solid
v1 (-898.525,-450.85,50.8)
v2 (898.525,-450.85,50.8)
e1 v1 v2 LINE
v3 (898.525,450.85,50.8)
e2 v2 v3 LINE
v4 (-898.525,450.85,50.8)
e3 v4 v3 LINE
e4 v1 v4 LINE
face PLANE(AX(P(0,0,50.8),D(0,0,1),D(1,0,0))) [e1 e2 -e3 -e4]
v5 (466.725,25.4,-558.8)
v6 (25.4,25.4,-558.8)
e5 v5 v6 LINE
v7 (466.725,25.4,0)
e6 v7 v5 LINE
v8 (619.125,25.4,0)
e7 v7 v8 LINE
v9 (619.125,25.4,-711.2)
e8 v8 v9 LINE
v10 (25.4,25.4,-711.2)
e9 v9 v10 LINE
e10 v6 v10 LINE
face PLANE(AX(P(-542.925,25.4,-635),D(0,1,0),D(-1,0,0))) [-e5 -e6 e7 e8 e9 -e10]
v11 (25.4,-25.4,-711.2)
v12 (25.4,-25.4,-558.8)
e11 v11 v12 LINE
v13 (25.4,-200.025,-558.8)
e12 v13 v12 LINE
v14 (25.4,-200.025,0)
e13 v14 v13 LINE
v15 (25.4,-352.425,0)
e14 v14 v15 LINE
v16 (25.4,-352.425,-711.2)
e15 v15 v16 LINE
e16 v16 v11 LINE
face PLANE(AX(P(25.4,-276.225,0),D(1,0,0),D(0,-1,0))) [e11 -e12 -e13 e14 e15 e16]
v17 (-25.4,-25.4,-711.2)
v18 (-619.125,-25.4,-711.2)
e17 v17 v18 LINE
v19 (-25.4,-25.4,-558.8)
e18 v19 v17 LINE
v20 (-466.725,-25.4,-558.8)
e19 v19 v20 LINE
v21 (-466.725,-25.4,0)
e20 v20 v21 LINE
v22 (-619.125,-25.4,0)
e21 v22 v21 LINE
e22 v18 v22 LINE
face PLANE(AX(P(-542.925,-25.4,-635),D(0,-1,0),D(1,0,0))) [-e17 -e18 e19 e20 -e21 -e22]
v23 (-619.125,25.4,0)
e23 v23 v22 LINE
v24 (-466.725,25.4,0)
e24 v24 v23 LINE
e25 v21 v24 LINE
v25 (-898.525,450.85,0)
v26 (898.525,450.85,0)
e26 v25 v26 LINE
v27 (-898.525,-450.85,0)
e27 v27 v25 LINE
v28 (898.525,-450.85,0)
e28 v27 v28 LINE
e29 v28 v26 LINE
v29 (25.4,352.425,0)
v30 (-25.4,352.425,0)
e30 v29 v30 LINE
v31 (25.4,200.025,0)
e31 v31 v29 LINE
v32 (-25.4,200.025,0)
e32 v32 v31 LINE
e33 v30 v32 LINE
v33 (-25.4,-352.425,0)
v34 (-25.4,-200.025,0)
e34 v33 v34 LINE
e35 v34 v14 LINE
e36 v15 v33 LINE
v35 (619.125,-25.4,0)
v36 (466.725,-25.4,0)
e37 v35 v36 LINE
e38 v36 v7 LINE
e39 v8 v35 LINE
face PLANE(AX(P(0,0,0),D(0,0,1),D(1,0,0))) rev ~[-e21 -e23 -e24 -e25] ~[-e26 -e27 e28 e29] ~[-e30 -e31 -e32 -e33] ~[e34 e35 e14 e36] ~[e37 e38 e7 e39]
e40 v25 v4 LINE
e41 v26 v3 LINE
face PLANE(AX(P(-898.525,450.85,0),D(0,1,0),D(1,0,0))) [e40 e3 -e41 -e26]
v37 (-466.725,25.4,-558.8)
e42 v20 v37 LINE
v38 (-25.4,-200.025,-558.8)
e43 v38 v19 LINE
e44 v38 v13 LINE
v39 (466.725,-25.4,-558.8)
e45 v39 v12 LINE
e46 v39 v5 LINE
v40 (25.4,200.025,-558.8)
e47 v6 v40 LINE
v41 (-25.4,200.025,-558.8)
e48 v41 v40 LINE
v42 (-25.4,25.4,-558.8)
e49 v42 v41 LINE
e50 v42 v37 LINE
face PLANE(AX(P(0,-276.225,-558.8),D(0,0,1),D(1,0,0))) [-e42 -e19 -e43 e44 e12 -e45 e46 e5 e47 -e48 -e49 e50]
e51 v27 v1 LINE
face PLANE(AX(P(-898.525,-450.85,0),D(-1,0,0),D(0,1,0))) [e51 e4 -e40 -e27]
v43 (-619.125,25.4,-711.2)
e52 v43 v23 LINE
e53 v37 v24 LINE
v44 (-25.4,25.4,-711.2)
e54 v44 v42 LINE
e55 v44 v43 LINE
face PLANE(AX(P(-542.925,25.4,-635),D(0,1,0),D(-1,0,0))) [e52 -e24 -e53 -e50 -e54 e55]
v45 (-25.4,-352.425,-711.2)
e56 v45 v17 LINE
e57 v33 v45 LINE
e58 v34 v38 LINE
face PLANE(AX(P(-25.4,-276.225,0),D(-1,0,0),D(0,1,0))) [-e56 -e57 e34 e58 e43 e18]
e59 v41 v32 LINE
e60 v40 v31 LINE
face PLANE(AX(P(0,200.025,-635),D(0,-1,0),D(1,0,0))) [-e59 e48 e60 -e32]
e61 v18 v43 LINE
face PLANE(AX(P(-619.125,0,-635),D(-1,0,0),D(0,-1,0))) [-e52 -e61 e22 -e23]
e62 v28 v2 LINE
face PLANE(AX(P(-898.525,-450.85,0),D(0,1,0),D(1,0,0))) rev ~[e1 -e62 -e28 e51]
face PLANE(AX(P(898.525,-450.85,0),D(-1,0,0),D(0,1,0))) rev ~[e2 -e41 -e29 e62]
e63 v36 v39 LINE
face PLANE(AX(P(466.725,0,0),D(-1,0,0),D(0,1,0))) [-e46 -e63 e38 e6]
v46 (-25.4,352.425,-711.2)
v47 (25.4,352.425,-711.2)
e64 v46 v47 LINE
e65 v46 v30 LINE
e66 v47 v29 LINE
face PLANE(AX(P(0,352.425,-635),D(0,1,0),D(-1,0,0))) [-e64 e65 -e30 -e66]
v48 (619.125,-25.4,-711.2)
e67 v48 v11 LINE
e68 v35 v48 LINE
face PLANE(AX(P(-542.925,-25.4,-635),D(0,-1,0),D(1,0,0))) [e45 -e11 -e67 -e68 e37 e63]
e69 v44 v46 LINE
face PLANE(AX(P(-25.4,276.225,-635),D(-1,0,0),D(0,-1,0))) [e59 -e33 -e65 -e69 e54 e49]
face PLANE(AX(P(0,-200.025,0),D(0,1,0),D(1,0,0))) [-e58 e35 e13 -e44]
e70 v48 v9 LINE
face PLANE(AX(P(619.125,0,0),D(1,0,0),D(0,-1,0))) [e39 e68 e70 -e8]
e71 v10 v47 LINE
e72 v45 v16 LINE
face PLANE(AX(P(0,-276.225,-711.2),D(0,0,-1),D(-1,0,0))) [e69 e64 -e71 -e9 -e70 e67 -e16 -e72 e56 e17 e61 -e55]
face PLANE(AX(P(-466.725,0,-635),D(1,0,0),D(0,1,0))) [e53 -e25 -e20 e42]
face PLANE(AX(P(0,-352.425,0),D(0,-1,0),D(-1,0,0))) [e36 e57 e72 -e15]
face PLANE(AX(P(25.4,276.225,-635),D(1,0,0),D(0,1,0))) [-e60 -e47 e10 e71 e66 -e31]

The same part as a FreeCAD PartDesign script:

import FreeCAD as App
import Part
import Sketcher
from FreeCAD import Vector
Q = App.Units.Quantity


def add_polygon(sketch, points):
    """Adds a closed chain of lines whose ends are joined by coincident constraints."""
    first, n = sketch.GeometryCount, len(points)
    for a, b in zip(points, points[1:] + points[:1]):
        sketch.addGeometry(Part.LineSegment(App.Vector(*a, 0), App.Vector(*b, 0)), False)
    for i in range(n):
        sketch.addConstraint(Sketcher.Constraint("Coincident", first + i, 2, first + (i + 1) % n, 1))

doc = App.newDocument("Part")
body = doc.addObject("PartDesign::Body", "Body")

# Sketch on XY plane
sketch1 = doc.addObject("Sketcher::SketchObject", "Sketch")
body.addObject(sketch1)
sketch1.AttachmentSupport = (doc.XY_Plane, [""])
sketch1.MapMode = "FlatFace"
add_polygon(sketch1, [(-898.525, 450.85), (-898.525, -450.85), (898.525, -450.85), (898.525, 450.85)])  # lines 0-3
sketch1.addConstraint([
    Sketcher.Constraint("Vertical", 0),
    Sketcher.Constraint("Horizontal", 1),
    Sketcher.Constraint("Vertical", 2),
    Sketcher.Constraint("Horizontal", 3),
    Sketcher.Constraint("Symmetric", 0, 2, 2, 2, -1, 1),
    Sketcher.Constraint("DistanceY", 0, 2, 0, 1, Q("35.5 in")),
    Sketcher.Constraint("DistanceX", 1, 1, 1, 2, Q("70.75 in")),
])
pad1 = doc.addObject("PartDesign::Pad", "Pad")
body.addObject(pad1)
pad1.Profile = sketch1
pad1.Length = Q("2 in")

# Sketch on XY plane
sketch2 = doc.addObject("Sketcher::SketchObject", "Sketch001")
body.addObject(sketch2)
sketch2.AttachmentSupport = (doc.XY_Plane, [""])
sketch2.MapMode = "FlatFace"
add_polygon(sketch2, [(466.725, -25.4), (466.725, 25.4), (619.125, 25.4), (619.125, -25.4)])  # lines 0-3
sketch2.addConstraint([
    Sketcher.Constraint("Vertical", 0),
    Sketcher.Constraint("Horizontal", 1),
    Sketcher.Constraint("Vertical", 2),
    Sketcher.Constraint("Horizontal", 3),
    Sketcher.Constraint("DistanceX", 1, 1, 1, 2, Q("6 in")),
    Sketcher.Constraint("DistanceY", 0, 1, 0, 2, Q("2 in")),
    Sketcher.Constraint("DistanceY", -1, 1, 0, 2, Q("1 in")),
    Sketcher.Constraint("DistanceX", -1, 1, 0, 2, Q("18.375 in")),
])

# Sketch on XZ plane
sketch3 = doc.addObject("Sketcher::SketchObject", "Sketch002")
body.addObject(sketch3)
sketch3.AttachmentSupport = (doc.XZ_Plane, [""])
sketch3.MapMode = "FlatFace"
sketch3.addGeometry([
    Part.LineSegment(Vector(542.925, 0, 0), Vector(542.925, -635, 0)),
    Part.LineSegment(Vector(542.925, -635, 0), Vector(-542.925, -635, 0)),
    Part.LineSegment(Vector(-542.925, -635, 0), Vector(-542.925, 0, 0)),
], False)
sketch3.addConstraint([
    Sketcher.Constraint("Coincident", 0, 2, 1, 1),
    Sketcher.Constraint("Coincident", 1, 2, 2, 1),
    Sketcher.Constraint("Vertical", 0),
    Sketcher.Constraint("Horizontal", 1),
    Sketcher.Constraint("Vertical", 2),
    Sketcher.Constraint("Symmetric", 0, 1, 2, 2, -1, 1),
    Sketcher.Constraint("PointOnObject", 0, 1, -1),
    Sketcher.Constraint("DistanceY", 0, 2, 0, 1, Q("25 in")),
    Sketcher.Constraint("DistanceX", 1, 2, 1, 1, Q("42.75 in")),
])
doc.recompute()

additivepipe = doc.addObject("PartDesign::AdditivePipe", "AdditivePipe")
body.addObject(additivepipe)
additivepipe.Profile = sketch2
additivepipe.Spine = (sketch3, ["Edge1", "Edge2", "Edge3"])
additivepipe.Transition = "Right corner"

# Sketch on XY plane
sketch4 = doc.addObject("Sketcher::SketchObject", "Sketch003")
body.addObject(sketch4)
sketch4.AttachmentSupport = (doc.XY_Plane, [""])
sketch4.MapMode = "FlatFace"
add_polygon(sketch4, [(-25.4, -352.425), (-25.4, -200.025), (25.4, -200.025), (25.4, -352.425)])  # lines 0-3
sketch4.addConstraint([
    Sketcher.Constraint("Vertical", 0),
    Sketcher.Constraint("Horizontal", 1),
    Sketcher.Constraint("Vertical", 2),
    Sketcher.Constraint("Horizontal", 3),
    Sketcher.Constraint("DistanceX", 1, 1, 1, 2, Q("2 in")),
    Sketcher.Constraint("DistanceY", 0, 1, 0, 2, Q("6 in")),
    Sketcher.Constraint("DistanceX", 0, 2, -1, 1, Q("1 in")),
    Sketcher.Constraint("DistanceY", 0, 2, -1, 1, Q("7.875 in")),
])

# Sketch on YZ plane
sketch5 = doc.addObject("Sketcher::SketchObject", "Sketch004")
body.addObject(sketch5)
sketch5.AttachmentSupport = (doc.YZ_Plane, [""])
sketch5.MapMode = "FlatFace"
sketch5.addGeometry([
    Part.LineSegment(Vector(-276.225, 0, 0), Vector(-276.225, -635, 0)),
    Part.LineSegment(Vector(-276.225, -635, 0), Vector(276.225, -635, 0)),
    Part.LineSegment(Vector(276.225, -635, 0), Vector(276.225, 0, 0)),
], False)
sketch5.addConstraint([
    Sketcher.Constraint("Coincident", 0, 2, 1, 1),
    Sketcher.Constraint("Coincident", 1, 2, 2, 1),
    Sketcher.Constraint("Vertical", 0),
    Sketcher.Constraint("Horizontal", 1),
    Sketcher.Constraint("Vertical", 2),
    Sketcher.Constraint("Symmetric", 0, 1, 2, 2, -1, 1),
    Sketcher.Constraint("PointOnObject", 0, 1, -1),
    Sketcher.Constraint("DistanceY", 0, 2, 0, 1, Q("25 in")),
    Sketcher.Constraint("DistanceX", 1, 1, 1, 2, Q("21.75 in")),
])
doc.recompute()

additivepipe2 = doc.addObject("PartDesign::AdditivePipe", "AdditivePipe001")
body.addObject(additivepipe2)
additivepipe2.Profile = sketch4
additivepipe2.Spine = (sketch5, ["Edge1", "Edge2", "Edge3"])
additivepipe2.Transition = "Right corner"

doc.recompute()
